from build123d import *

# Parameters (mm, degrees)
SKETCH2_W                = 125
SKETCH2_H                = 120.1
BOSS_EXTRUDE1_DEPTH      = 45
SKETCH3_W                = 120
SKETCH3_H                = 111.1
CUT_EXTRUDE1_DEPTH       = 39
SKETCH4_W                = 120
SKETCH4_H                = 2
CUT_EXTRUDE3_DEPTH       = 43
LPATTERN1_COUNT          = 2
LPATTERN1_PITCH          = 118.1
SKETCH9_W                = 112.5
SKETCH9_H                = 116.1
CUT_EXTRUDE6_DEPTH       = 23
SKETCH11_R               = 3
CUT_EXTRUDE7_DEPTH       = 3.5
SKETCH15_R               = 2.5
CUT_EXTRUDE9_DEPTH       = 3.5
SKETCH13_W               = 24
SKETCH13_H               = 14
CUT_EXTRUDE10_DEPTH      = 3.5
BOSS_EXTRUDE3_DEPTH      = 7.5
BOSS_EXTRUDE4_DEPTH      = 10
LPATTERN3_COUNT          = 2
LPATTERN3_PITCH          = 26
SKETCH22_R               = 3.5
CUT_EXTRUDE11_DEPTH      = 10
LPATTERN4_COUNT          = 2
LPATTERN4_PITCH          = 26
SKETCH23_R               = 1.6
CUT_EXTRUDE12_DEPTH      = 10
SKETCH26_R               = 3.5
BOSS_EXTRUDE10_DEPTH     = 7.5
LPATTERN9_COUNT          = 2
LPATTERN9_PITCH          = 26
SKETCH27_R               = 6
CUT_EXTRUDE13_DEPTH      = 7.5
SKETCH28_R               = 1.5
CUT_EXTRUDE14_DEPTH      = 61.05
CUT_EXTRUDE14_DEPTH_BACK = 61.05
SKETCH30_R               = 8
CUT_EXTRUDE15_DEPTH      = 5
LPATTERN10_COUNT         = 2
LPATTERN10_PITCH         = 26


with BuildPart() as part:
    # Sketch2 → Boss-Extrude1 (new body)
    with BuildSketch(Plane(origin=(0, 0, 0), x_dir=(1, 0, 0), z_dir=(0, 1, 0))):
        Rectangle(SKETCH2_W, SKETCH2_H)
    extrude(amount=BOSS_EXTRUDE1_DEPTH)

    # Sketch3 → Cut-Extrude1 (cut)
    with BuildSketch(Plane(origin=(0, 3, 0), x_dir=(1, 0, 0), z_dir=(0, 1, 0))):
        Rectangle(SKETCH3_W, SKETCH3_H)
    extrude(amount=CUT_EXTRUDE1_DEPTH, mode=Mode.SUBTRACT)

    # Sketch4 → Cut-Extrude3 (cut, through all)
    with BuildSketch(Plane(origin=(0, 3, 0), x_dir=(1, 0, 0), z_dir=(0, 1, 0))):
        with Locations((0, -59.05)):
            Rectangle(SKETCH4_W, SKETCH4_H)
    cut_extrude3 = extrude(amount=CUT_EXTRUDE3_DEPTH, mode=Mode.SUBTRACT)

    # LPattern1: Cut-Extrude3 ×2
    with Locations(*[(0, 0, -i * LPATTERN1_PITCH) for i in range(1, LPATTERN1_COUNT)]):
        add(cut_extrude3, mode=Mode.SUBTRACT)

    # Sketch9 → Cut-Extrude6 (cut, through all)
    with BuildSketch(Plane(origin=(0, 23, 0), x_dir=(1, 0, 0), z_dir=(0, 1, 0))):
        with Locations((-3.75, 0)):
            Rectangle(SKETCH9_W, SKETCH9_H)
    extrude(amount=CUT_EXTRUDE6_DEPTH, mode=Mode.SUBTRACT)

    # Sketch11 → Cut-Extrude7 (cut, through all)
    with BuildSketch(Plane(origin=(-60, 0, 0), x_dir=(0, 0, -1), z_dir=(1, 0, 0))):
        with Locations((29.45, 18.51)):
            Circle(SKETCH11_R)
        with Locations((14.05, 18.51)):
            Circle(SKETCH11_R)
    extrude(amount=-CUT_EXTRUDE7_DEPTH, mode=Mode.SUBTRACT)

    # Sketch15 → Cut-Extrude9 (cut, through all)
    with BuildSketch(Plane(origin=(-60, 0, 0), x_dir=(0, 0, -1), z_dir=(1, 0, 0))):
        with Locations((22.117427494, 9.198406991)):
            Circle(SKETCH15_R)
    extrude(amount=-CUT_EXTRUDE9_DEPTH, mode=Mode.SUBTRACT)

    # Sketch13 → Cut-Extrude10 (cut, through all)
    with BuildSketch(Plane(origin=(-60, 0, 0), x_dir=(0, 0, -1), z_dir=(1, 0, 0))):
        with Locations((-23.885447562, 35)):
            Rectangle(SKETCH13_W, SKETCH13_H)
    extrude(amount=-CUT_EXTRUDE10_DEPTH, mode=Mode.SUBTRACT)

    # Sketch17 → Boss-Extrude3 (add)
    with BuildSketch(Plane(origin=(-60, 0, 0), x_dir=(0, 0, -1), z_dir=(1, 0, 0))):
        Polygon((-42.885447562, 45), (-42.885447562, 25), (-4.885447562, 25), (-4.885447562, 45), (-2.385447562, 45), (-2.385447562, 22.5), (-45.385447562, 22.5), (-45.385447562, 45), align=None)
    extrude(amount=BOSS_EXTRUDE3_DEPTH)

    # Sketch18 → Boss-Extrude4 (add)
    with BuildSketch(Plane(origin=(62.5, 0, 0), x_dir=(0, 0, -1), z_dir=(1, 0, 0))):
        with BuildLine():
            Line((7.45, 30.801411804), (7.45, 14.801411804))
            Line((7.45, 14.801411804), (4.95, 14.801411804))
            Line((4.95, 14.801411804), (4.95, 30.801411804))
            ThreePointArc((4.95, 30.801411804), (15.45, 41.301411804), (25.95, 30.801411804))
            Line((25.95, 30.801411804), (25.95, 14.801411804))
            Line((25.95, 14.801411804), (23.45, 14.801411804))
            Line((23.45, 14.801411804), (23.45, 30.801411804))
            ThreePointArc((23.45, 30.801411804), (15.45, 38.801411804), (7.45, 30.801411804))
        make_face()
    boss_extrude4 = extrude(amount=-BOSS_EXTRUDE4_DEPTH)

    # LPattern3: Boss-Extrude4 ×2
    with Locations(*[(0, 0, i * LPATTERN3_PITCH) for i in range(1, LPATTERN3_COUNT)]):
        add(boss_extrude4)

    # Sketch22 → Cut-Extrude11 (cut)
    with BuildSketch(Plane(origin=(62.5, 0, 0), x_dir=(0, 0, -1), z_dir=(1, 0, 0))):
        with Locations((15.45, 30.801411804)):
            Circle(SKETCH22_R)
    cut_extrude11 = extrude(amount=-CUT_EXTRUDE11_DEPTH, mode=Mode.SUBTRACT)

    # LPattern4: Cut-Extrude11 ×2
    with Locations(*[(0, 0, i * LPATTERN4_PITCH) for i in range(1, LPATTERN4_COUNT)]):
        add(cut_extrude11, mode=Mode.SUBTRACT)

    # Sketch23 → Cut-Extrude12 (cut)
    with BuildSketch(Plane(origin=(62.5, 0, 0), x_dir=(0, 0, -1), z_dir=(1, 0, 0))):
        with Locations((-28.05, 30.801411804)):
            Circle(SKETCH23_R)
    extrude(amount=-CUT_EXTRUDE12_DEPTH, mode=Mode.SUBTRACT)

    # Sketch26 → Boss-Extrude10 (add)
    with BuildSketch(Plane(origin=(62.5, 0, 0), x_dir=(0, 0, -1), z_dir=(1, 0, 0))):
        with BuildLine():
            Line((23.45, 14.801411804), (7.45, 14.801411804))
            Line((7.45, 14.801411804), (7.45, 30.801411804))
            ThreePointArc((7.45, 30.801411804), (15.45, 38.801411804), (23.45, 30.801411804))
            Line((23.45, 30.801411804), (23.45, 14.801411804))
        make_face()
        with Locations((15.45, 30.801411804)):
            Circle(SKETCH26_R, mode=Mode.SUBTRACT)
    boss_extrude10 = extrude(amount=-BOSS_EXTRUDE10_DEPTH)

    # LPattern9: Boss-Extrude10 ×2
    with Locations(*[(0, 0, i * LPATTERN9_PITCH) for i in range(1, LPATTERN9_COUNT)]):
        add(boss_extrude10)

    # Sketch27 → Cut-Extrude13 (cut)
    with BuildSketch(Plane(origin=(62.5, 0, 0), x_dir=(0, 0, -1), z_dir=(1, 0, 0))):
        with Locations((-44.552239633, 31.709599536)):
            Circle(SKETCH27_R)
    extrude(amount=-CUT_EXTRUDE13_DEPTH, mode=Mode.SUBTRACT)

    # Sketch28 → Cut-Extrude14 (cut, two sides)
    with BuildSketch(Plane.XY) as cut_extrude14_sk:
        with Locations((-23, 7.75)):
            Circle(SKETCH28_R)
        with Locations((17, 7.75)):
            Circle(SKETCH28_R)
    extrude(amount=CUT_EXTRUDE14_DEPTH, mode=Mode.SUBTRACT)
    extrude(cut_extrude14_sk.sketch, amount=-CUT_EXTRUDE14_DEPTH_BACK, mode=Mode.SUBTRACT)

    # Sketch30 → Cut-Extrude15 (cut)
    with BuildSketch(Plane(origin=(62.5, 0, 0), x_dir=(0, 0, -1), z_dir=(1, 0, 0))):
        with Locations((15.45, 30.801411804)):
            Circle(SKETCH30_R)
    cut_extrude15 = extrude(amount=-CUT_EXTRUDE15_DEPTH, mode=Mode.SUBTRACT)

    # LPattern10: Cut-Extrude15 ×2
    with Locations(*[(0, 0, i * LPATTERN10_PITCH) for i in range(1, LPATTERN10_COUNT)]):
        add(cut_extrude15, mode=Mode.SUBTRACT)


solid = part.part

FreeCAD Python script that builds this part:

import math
import FreeCAD as App
import Part
import Sketcher

V = App.Vector
Q = App.Units.Quantity


def add_polygon(sketch, points):
    """Adds a closed chain of lines whose ends are joined by coincident constraints."""
    first, n = sketch.GeometryCount, len(points)
    for a, b in zip(points, points[1:] + points[:1]):
        sketch.addGeometry(Part.LineSegment(App.Vector(*a, 0), App.Vector(*b, 0)), False)
    for i in range(n):
        sketch.addConstraint(Sketcher.Constraint("Coincident", first + i, 2, first + (i + 1) % n, 1))

doc = App.newDocument("Part")
body = doc.addObject("PartDesign::Body", "Body")

# Sketch on XZ plane
sketch1 = doc.addObject("Sketcher::SketchObject", "Sketch")
body.addObject(sketch1)
sketch1.AttachmentSupport = (doc.XZ_Plane, [""])
sketch1.MapMode = "FlatFace"
add_polygon(sketch1, [(-62, -60), (-62, 60), (62, 60), (62, -60)])  # lines 0-3
sketch1.addConstraint(Sketcher.Constraint("Vertical", 0))
sketch1.addConstraint(Sketcher.Constraint("Horizontal", 1))
sketch1.addConstraint(Sketcher.Constraint("Vertical", 2))
sketch1.addConstraint(Sketcher.Constraint("Horizontal", 3))
sketch1.addConstraint(Sketcher.Constraint("Symmetric", 0, 2, 2, 2, -1, 1))
sketch1.addConstraint(Sketcher.Constraint("DistanceX", 1, 1, 1, 2, Q("125 mm")))
sketch1.addConstraint(Sketcher.Constraint("DistanceY", 0, 1, 0, 2, Q("120.1 mm")))
pad1 = doc.addObject("PartDesign::Pad", "Pad")
body.addObject(pad1)
pad1.Profile = sketch1
pad1.Length = 45
pad1.Reversed = True

# Sketch on XZ plane
sketch2 = doc.addObject("Sketcher::SketchObject", "Sketch001")
body.addObject(sketch2)
sketch2.AttachmentSupport = (doc.XZ_Plane, [""])
sketch2.MapMode = "FlatFace"
sketch2.AttachmentOffset = App.Placement(V(0, 0, -3), App.Rotation())
add_polygon(sketch2, [(-60, -56), (-60, 56), (60, 56), (60, -56)])  # lines 0-3
sketch2.addConstraint(Sketcher.Constraint("Vertical", 0))
sketch2.addConstraint(Sketcher.Constraint("Horizontal", 1))
sketch2.addConstraint(Sketcher.Constraint("Vertical", 2))
sketch2.addConstraint(Sketcher.Constraint("Horizontal", 3))
sketch2.addConstraint(Sketcher.Constraint("Symmetric", 0, 2, 2, 2, -1, 1))
sketch2.addConstraint(Sketcher.Constraint("DistanceX", 1, 1, 1, 2, Q("120 mm")))
sketch2.addConstraint(Sketcher.Constraint("DistanceY", 0, 1, 0, 2, Q("111.1 mm")))
pocket1 = doc.addObject("PartDesign::Pocket", "Pocket")
body.addObject(pocket1)
pocket1.Profile = sketch2
pocket1.Length = 39

# Sketch on XZ plane
sketch3 = doc.addObject("Sketcher::SketchObject", "Sketch002")
body.addObject(sketch3)
sketch3.AttachmentSupport = (doc.XZ_Plane, [""])
sketch3.MapMode = "FlatFace"
sketch3.AttachmentOffset = App.Placement(V(0, 0, -3), App.Rotation())
add_polygon(sketch3, [(-60, 58), (-60, 60), (60, 60), (60, 58)])  # lines 0-3
sketch3.addConstraint(Sketcher.Constraint("Vertical", 0))
sketch3.addConstraint(Sketcher.Constraint("Horizontal", 1))
sketch3.addConstraint(Sketcher.Constraint("Vertical", 2))
sketch3.addConstraint(Sketcher.Constraint("Horizontal", 3))
sketch3.addConstraint(Sketcher.Constraint("DistanceX", 1, 1, 1, 2, Q("120 mm")))
sketch3.addConstraint(Sketcher.Constraint("DistanceY", 0, 1, 0, 2, Q("2 mm")))
sketch3.addConstraint(Sketcher.Constraint("DistanceX", 0, 2, -1, 1, Q("60 mm")))
sketch3.addConstraint(Sketcher.Constraint("DistanceY", -1, 1, 0, 2, Q("60.05 mm")))
pocket2 = doc.addObject("PartDesign::Pocket", "Pocket001")
body.addObject(pocket2)
pocket2.Profile = sketch3
pocket2.Type = "ThroughAll"
doc.recompute()

linearpattern = doc.addObject("PartDesign::LinearPattern", "LinearPattern")
body.addObject(linearpattern)
linearpattern.Originals = [pocket2]
linearpattern.Direction = (doc.Z_Axis, [""])
linearpattern.Mode = "offset"
linearpattern.Offset = 118.1
linearpattern.Occurrences = 2
linearpattern.Reversed = True
body.Tip = linearpattern

# Sketch on XZ plane
sketch4 = doc.addObject("Sketcher::SketchObject", "Sketch003")
body.addObject(sketch4)
sketch4.AttachmentSupport = (doc.XZ_Plane, [""])
sketch4.MapMode = "FlatFace"
sketch4.AttachmentOffset = App.Placement(V(0, 0, -23), App.Rotation())
add_polygon(sketch4, [(-60, -58), (-60, 58), (52, 58), (52, -58)])  # lines 0-3
sketch4.addConstraint(Sketcher.Constraint("Vertical", 0))
sketch4.addConstraint(Sketcher.Constraint("Horizontal", 1))
sketch4.addConstraint(Sketcher.Constraint("Vertical", 2))
sketch4.addConstraint(Sketcher.Constraint("Horizontal", 3))
sketch4.addConstraint(Sketcher.Constraint("DistanceX", 1, 1, 1, 2, Q("112.5 mm")))
sketch4.addConstraint(Sketcher.Constraint("DistanceY", 0, 1, 0, 2, Q("116.1 mm")))
sketch4.addConstraint(Sketcher.Constraint("DistanceX", 0, 2, -1, 1, Q("60 mm")))
sketch4.addConstraint(Sketcher.Constraint("DistanceY", -1, 1, 0, 2, Q("58.05 mm")))
pocket3 = doc.addObject("PartDesign::Pocket", "Pocket002")
body.addObject(pocket3)
pocket3.Profile = sketch4
pocket3.Type = "ThroughAll"

# Sketch on YZ plane
sketch5 = doc.addObject("Sketcher::SketchObject", "Sketch004")
body.addObject(sketch5)
sketch5.AttachmentSupport = (doc.YZ_Plane, [""])
sketch5.MapMode = "FlatFace"
sketch5.AttachmentOffset = App.Placement(V(0, 0, -60), App.Rotation())
sketch5.addGeometry(Part.Circle(V(18.5, -29.4, 0), V(0, 0, 1), 3), False)
sketch5.addGeometry(Part.Circle(V(18.5, -14.1, 0), V(0, 0, 1), 3), False)
sketch5.addConstraint(Sketcher.Constraint("Equal", 0, 1))
sketch5.addConstraint(Sketcher.Constraint("Vertical", 0, 3, 1, 3))
sketch5.addConstraint(Sketcher.Constraint("Diameter", 0, Q("6 mm")))
sketch5.addConstraint(Sketcher.Constraint("DistanceY", 0, 3, 1, 3, Q("15.4 mm")))
sketch5.addConstraint(Sketcher.Constraint("DistanceX", -1, 1, 0, 3, Q("18.51 mm")))
sketch5.addConstraint(Sketcher.Constraint("DistanceY", 0, 3, -1, 1, Q("29.45 mm")))
pocket4 = doc.addObject("PartDesign::Pocket", "Pocket003")
body.addObject(pocket4)
pocket4.Profile = sketch5
pocket4.Type = "ThroughAll"

# Sketch on YZ plane
sketch6 = doc.addObject("Sketcher::SketchObject", "Sketch005")
body.addObject(sketch6)
sketch6.AttachmentSupport = (doc.YZ_Plane, [""])
sketch6.MapMode = "FlatFace"
sketch6.AttachmentOffset = App.Placement(V(0, 0, -60), App.Rotation())
sketch6.addGeometry(Part.Circle(V(9.2, -22.1, 0), V(0, 0, 1), 2.5), False)
sketch6.addConstraint(Sketcher.Constraint("Diameter", 0, Q("5 mm")))
sketch6.addConstraint(Sketcher.Constraint("DistanceX", -1, 1, 0, 3, Q("9.198407 mm")))
sketch6.addConstraint(Sketcher.Constraint("DistanceY", 0, 3, -1, 1, Q("22.117427 mm")))
pocket5 = doc.addObject("PartDesign::Pocket", "Pocket004")
body.addObject(pocket5)
pocket5.Profile = sketch6
pocket5.Type = "ThroughAll"

# Sketch on YZ plane
sketch7 = doc.addObject("Sketcher::SketchObject", "Sketch006")
body.addObject(sketch7)
sketch7.AttachmentSupport = (doc.YZ_Plane, [""])
sketch7.MapMode = "FlatFace"
sketch7.AttachmentOffset = App.Placement(V(0, 0, -60), App.Rotation())
add_polygon(sketch7, [(42, 36), (28, 36), (28, 12), (42, 12)])  # lines 0-3
sketch7.addConstraint(Sketcher.Constraint("Horizontal", 0))
sketch7.addConstraint(Sketcher.Constraint("Vertical", 1))
sketch7.addConstraint(Sketcher.Constraint("Horizontal", 2))
sketch7.addConstraint(Sketcher.Constraint("Vertical", 3))
sketch7.addConstraint(Sketcher.Constraint("DistanceX", 0, 2, 0, 1, Q("14 mm")))
sketch7.addConstraint(Sketcher.Constraint("DistanceY", 1, 2, 1, 1, Q("24 mm")))
sketch7.addConstraint(Sketcher.Constraint("DistanceX", -1, 1, 0, 2, Q("28 mm")))
sketch7.addConstraint(Sketcher.Constraint("DistanceY", -1, 1, 0, 2, Q("35.885448 mm")))
pocket6 = doc.addObject("PartDesign::Pocket", "Pocket005")
body.addObject(pocket6)
pocket6.Profile = sketch7
pocket6.Type = "ThroughAll"

# Sketch on YZ plane
sketch8 = doc.addObject("Sketcher::SketchObject", "Sketch007")
body.addObject(sketch8)
sketch8.AttachmentSupport = (doc.YZ_Plane, [""])
sketch8.MapMode = "FlatFace"
sketch8.AttachmentOffset = App.Placement(V(0, 0, -60), App.Rotation())
add_polygon(sketch8, [(25, 42.9), (45, 42.9), (45, 45.4), (22.5, 45.4), (22.5, 2.4), (45, 2.4), (45, 4.9), (25, 4.9)])  # lines 0-7
sketch8.addConstraint(Sketcher.Constraint("Horizontal", 0))
sketch8.addConstraint(Sketcher.Constraint("Vertical", 1))
sketch8.addConstraint(Sketcher.Constraint("Horizontal", 2))
sketch8.addConstraint(Sketcher.Constraint("Vertical", 3))
sketch8.addConstraint(Sketcher.Constraint("Horizontal", 4))
sketch8.addConstraint(Sketcher.Constraint("Vertical", 5))
sketch8.addConstraint(Sketcher.Constraint("Horizontal", 6))
sketch8.addConstraint(Sketcher.Constraint("Vertical", 7))
sketch8.addConstraint(Sketcher.Constraint("Vertical", 1, 2, 4, 2))
sketch8.addConstraint(Sketcher.Constraint("Equal", 1, 5))
sketch8.addConstraint(Sketcher.Constraint("DistanceX", 0, 1, 0, 2, Q("20 mm")))
sketch8.addConstraint(Sketcher.Constraint("DistanceY", 3, 2, 3, 1, Q("43 mm")))
sketch8.addConstraint(Sketcher.Constraint("DistanceY", 7, 1, 7, 2, Q("38 mm")))
sketch8.addConstraint(Sketcher.Constraint("DistanceX", 2, 2, 2, 1, Q("22.5 mm")))
sketch8.addConstraint(Sketcher.Constraint("DistanceX", -1, 1, 0, 2, Q("45 mm")))
sketch8.addConstraint(Sketcher.Constraint("DistanceY", -1, 1, 0, 2, Q("42.885448 mm")))
pad2 = doc.addObject("PartDesign::Pad", "Pad001")
body.addObject(pad2)
pad2.Profile = sketch8
pad2.Length = 7.5

# Sketch on YZ plane
sketch9 = doc.addObject("Sketcher::SketchObject", "Sketch008")
body.addObject(sketch9)
sketch9.AttachmentSupport = (doc.YZ_Plane, [""])
sketch9.MapMode = "FlatFace"
sketch9.AttachmentOffset = App.Placement(V(0, 0, 62.5), App.Rotation())
sketch9.addGeometry(Part.LineSegment(V(14.8, -7.5, 0), V(30.8, -7.5, 0)), False)
sketch9.addGeometry(Part.ArcOfCircle(Part.Circle(V(30.8, -15.4, 0), V(0, 0, 1), 8), math.radians(-90), math.radians(90)), False)
sketch9.addGeometry(Part.LineSegment(V(30.8, -23.4, 0), V(14.8, -23.4, 0)), False)
sketch9.addGeometry(Part.LineSegment(V(14.8, -23.4, 0), V(14.8, -25.9, 0)), False)
sketch9.addGeometry(Part.LineSegment(V(14.8, -25.9, 0), V(30.8, -25.9, 0)), False)
sketch9.addGeometry(Part.ArcOfCircle(Part.Circle(V(30.8, -15.4, 0), V(0, 0, 1), 10.5), math.radians(-90), math.radians(90)), False)
sketch9.addGeometry(Part.LineSegment(V(30.8, -5, 0), V(14.8, -5, 0)), False)
sketch9.addGeometry(Part.LineSegment(V(14.8, -5, 0), V(14.8, -7.5, 0)), False)
sketch9.addConstraint(Sketcher.Constraint("Tangent", 0, 2, 1, 2))
sketch9.addConstraint(Sketcher.Constraint("Tangent", 1, 1, 2, 1))
sketch9.addConstraint(Sketcher.Constraint("Coincident", 2, 2, 3, 1))
sketch9.addConstraint(Sketcher.Constraint("Coincident", 3, 2, 4, 1))
sketch9.addConstraint(Sketcher.Constraint("Tangent", 4, 2, 5, 1))
sketch9.addConstraint(Sketcher.Constraint("Tangent", 5, 2, 6, 1))
sketch9.addConstraint(Sketcher.Constraint("Coincident", 6, 2, 7, 1))
sketch9.addConstraint(Sketcher.Constraint("Coincident", 7, 2, 0, 1))
sketch9.addConstraint(Sketcher.Constraint("Horizontal", 0))
sketch9.addConstraint(Sketcher.Constraint("Horizontal", 2))
sketch9.addConstraint(Sketcher.Constraint("Vertical", 3))
sketch9.addConstraint(Sketcher.Constraint("Horizontal", 4))
sketch9.addConstraint(Sketcher.Constraint("Horizontal", 6))
sketch9.addConstraint(Sketcher.Constraint("Vertical", 7))
sketch9.addConstraint(Sketcher.Constraint("Coincident", 5, 3, 1, 3))
sketch9.addConstraint(Sketcher.Constraint("Vertical", 3, 2, 6, 2))
sketch9.addConstraint(Sketcher.Constraint("Radius", 1, Q("8 mm")))
sketch9.addConstraint(Sketcher.Constraint("Radius", 5, Q("10.5 mm")))
sketch9.addConstraint(Sketcher.Constraint("DistanceX", 0, 1, 0, 2, Q("16 mm")))
sketch9.addConstraint(Sketcher.Constraint("DistanceY", 1, 3, -1, 1, Q("15.45 mm")))
sketch9.addConstraint(Sketcher.Constraint("DistanceX", -1, 1, 1, 3, Q("30.801412 mm")))
pad3 = doc.addObject("PartDesign::Pad", "Pad002")
body.addObject(pad3)
pad3.Profile = sketch9
pad3.Length = 10
pad3.Reversed = True
doc.recompute()

linearpattern2 = doc.addObject("PartDesign::LinearPattern", "LinearPattern001")
body.addObject(linearpattern2)
linearpattern2.Originals = [pad3]
linearpattern2.Direction = (doc.Z_Axis, [""])
linearpattern2.Mode = "offset"
linearpattern2.Offset = 26
linearpattern2.Occurrences = 2
body.Tip = linearpattern2

# Sketch on YZ plane
sketch10 = doc.addObject("Sketcher::SketchObject", "Sketch009")
body.addObject(sketch10)
sketch10.AttachmentSupport = (doc.YZ_Plane, [""])
sketch10.MapMode = "FlatFace"
sketch10.AttachmentOffset = App.Placement(V(0, 0, 62.5), App.Rotation())
sketch10.addGeometry(Part.Circle(V(30.8, -15.4, 0), V(0, 0, 1), 3.5), False)
sketch10.addConstraint(Sketcher.Constraint("Diameter", 0, Q("7 mm")))
sketch10.addConstraint(Sketcher.Constraint("DistanceY", 0, 3, -1, 1, Q("15.45 mm")))
sketch10.addConstraint(Sketcher.Constraint("DistanceX", -1, 1, 0, 3, Q("30.801412 mm")))
pocket7 = doc.addObject("PartDesign::Pocket", "Pocket006")
body.addObject(pocket7)
pocket7.Profile = sketch10
pocket7.Length = 10
doc.recompute()

linearpattern3 = doc.addObject("PartDesign::LinearPattern", "LinearPattern002")
body.addObject(linearpattern3)
linearpattern3.Originals = [pocket7]
linearpattern3.Direction = (doc.Z_Axis, [""])
linearpattern3.Mode = "offset"
linearpattern3.Offset = 26
linearpattern3.Occurrences = 2
body.Tip = linearpattern3

# Sketch on YZ plane
sketch11 = doc.addObject("Sketcher::SketchObject", "Sketch010")
body.addObject(sketch11)
sketch11.AttachmentSupport = (doc.YZ_Plane, [""])
sketch11.MapMode = "FlatFace"
sketch11.AttachmentOffset = App.Placement(V(0, 0, 62.5), App.Rotation())
sketch11.addGeometry(Part.Circle(V(30.8, 28.1, 0), V(0, 0, 1), 1.6), False)
sketch11.addConstraint(Sketcher.Constraint("Diameter", 0, Q("3.2 mm")))
sketch11.addConstraint(Sketcher.Constraint("DistanceY", -1, 1, 0, 3, Q("28.05 mm")))
sketch11.addConstraint(Sketcher.Constraint("DistanceX", -1, 1, 0, 3, Q("30.801412 mm")))
pocket8 = doc.addObject("PartDesign::Pocket", "Pocket007")
body.addObject(pocket8)
pocket8.Profile = sketch11
pocket8.Length = 10

# Sketch on YZ plane
sketch12 = doc.addObject("Sketcher::SketchObject", "Sketch011")
body.addObject(sketch12)
sketch12.AttachmentSupport = (doc.YZ_Plane, [""])
sketch12.MapMode = "FlatFace"
sketch12.AttachmentOffset = App.Placement(V(0, 0, 62.5), App.Rotation())
sketch12.addGeometry(Part.LineSegment(V(14.8, -7.5, 0), V(14.8, -23.4, 0)), False)
sketch12.addGeometry(Part.LineSegment(V(14.8, -23.4, 0), V(30.8, -23.4, 0)), False)
sketch12.addGeometry(Part.ArcOfCircle(Part.Circle(V(30.8, -15.4, 0), V(0, 0, 1), 8), math.radians(-90), math.radians(90)), False)
sketch12.addGeometry(Part.LineSegment(V(30.8, -7.5, 0), V(14.8, -7.5, 0)), False)
sketch12.addGeometry(Part.Circle(V(30.8, -15.4, 0), V(0, 0, 1), 3.5), False)
sketch12.addConstraint(Sketcher.Constraint("Coincident", 0, 2, 1, 1))
sketch12.addConstraint(Sketcher.Constraint("Tangent", 1, 2, 2, 1))
sketch12.addConstraint(Sketcher.Constraint("Tangent", 2, 2, 3, 1))
sketch12.addConstraint(Sketcher.Constraint("Coincident", 3, 2, 0, 1))
sketch12.addConstraint(Sketcher.Constraint("Vertical", 0))
sketch12.addConstraint(Sketcher.Constraint("Horizontal", 1))
sketch12.addConstraint(Sketcher.Constraint("Horizontal", 3))
sketch12.addConstraint(Sketcher.Constraint("Coincident", 4, 3, 2, 3))
sketch12.addConstraint(Sketcher.Constraint("Equal", 3, 0))
sketch12.addConstraint(Sketcher.Constraint("Diameter", 4, Q("7 mm")))
sketch12.addConstraint(Sketcher.Constraint("Radius", 2, Q("8 mm")))
sketch12.addConstraint(Sketcher.Constraint("DistanceY", 2, 3, -1, 1, Q("15.45 mm")))
sketch12.addConstraint(Sketcher.Constraint("DistanceX", -1, 1, 2, 3, Q("30.801412 mm")))
pad4 = doc.addObject("PartDesign::Pad", "Pad003")
body.addObject(pad4)
pad4.Profile = sketch12
pad4.Length = 7.5
pad4.Reversed = True
doc.recompute()

linearpattern4 = doc.addObject("PartDesign::LinearPattern", "LinearPattern003")
body.addObject(linearpattern4)
linearpattern4.Originals = [pad4]
linearpattern4.Direction = (doc.Z_Axis, [""])
linearpattern4.Mode = "offset"
linearpattern4.Offset = 26
linearpattern4.Occurrences = 2
body.Tip = linearpattern4

# Sketch on YZ plane
sketch13 = doc.addObject("Sketcher::SketchObject", "Sketch012")
body.addObject(sketch13)
sketch13.AttachmentSupport = (doc.YZ_Plane, [""])
sketch13.MapMode = "FlatFace"
sketch13.AttachmentOffset = App.Placement(V(0, 0, 62.5), App.Rotation())
sketch13.addGeometry(Part.Circle(V(32, 45, 0), V(0, 0, 1), 6), False)
sketch13.addConstraint(Sketcher.Constraint("Diameter", 0, Q("12 mm")))
sketch13.addConstraint(Sketcher.Constraint("DistanceX", -1, 1, 0, 3, Q("31.7096 mm")))
sketch13.addConstraint(Sketcher.Constraint("DistanceY", -1, 1, 0, 3, Q("44.55224 mm")))
pocket9 = doc.addObject("PartDesign::Pocket", "Pocket008")
body.addObject(pocket9)
pocket9.Profile = sketch13
pocket9.Length = 7.5

# Sketch on XY plane
sketch14 = doc.addObject("Sketcher::SketchObject", "Sketch013")
body.addObject(sketch14)
sketch14.AttachmentSupport = (doc.XY_Plane, [""])
sketch14.MapMode = "FlatFace"
sketch14.addGeometry(Part.Circle(V(-23, 7.8, 0), V(0, 0, 1), 1.5), False)
sketch14.addGeometry(Part.Circle(V(17, 7.8, 0), V(0, 0, 1), 1.5), False)
sketch14.addConstraint(Sketcher.Constraint("Equal", 0, 1))
sketch14.addConstraint(Sketcher.Constraint("Horizontal", 0, 3, 1, 3))
sketch14.addConstraint(Sketcher.Constraint("Diameter", 0, Q("3 mm")))
sketch14.addConstraint(Sketcher.Constraint("DistanceX", 0, 3, -1, 1, Q("23 mm")))
sketch14.addConstraint(Sketcher.Constraint("DistanceX", -1, 1, 1, 3, Q("17 mm")))
sketch14.addConstraint(Sketcher.Constraint("DistanceY", -1, 1, 0, 3, Q("7.75 mm")))
pocket10 = doc.addObject("PartDesign::Pocket", "Pocket009")
body.addObject(pocket10)
pocket10.Profile = sketch14
pocket10.Type = "ThroughAll"
pocket10.Midplane = True

# Sketch on YZ plane
sketch15 = doc.addObject("Sketcher::SketchObject", "Sketch014")
body.addObject(sketch15)
sketch15.AttachmentSupport = (doc.YZ_Plane, [""])
sketch15.MapMode = "FlatFace"
sketch15.AttachmentOffset = App.Placement(V(0, 0, 62.5), App.Rotation())
sketch15.addGeometry(Part.Circle(V(31, -15, 0), V(0, 0, 1), 8), False)
sketch15.addConstraint(Sketcher.Constraint("Diameter", 0, Q("16 mm")))
sketch15.addConstraint(Sketcher.Constraint("DistanceY", 0, 3, -1, 1, Q("15.45 mm")))
sketch15.addConstraint(Sketcher.Constraint("DistanceX", -1, 1, 0, 3, Q("30.801412 mm")))
pocket11 = doc.addObject("PartDesign::Pocket", "Pocket010")
body.addObject(pocket11)
pocket11.Profile = sketch15
pocket11.Length = 5
doc.recompute()

linearpattern5 = doc.addObject("PartDesign::LinearPattern", "LinearPattern004")
body.addObject(linearpattern5)
linearpattern5.Originals = [pocket11]
linearpattern5.Direction = (doc.Z_Axis, [""])
linearpattern5.Mode = "offset"
linearpattern5.Offset = 26
linearpattern5.Occurrences = 2
body.Tip = linearpattern5

doc.recompute()
